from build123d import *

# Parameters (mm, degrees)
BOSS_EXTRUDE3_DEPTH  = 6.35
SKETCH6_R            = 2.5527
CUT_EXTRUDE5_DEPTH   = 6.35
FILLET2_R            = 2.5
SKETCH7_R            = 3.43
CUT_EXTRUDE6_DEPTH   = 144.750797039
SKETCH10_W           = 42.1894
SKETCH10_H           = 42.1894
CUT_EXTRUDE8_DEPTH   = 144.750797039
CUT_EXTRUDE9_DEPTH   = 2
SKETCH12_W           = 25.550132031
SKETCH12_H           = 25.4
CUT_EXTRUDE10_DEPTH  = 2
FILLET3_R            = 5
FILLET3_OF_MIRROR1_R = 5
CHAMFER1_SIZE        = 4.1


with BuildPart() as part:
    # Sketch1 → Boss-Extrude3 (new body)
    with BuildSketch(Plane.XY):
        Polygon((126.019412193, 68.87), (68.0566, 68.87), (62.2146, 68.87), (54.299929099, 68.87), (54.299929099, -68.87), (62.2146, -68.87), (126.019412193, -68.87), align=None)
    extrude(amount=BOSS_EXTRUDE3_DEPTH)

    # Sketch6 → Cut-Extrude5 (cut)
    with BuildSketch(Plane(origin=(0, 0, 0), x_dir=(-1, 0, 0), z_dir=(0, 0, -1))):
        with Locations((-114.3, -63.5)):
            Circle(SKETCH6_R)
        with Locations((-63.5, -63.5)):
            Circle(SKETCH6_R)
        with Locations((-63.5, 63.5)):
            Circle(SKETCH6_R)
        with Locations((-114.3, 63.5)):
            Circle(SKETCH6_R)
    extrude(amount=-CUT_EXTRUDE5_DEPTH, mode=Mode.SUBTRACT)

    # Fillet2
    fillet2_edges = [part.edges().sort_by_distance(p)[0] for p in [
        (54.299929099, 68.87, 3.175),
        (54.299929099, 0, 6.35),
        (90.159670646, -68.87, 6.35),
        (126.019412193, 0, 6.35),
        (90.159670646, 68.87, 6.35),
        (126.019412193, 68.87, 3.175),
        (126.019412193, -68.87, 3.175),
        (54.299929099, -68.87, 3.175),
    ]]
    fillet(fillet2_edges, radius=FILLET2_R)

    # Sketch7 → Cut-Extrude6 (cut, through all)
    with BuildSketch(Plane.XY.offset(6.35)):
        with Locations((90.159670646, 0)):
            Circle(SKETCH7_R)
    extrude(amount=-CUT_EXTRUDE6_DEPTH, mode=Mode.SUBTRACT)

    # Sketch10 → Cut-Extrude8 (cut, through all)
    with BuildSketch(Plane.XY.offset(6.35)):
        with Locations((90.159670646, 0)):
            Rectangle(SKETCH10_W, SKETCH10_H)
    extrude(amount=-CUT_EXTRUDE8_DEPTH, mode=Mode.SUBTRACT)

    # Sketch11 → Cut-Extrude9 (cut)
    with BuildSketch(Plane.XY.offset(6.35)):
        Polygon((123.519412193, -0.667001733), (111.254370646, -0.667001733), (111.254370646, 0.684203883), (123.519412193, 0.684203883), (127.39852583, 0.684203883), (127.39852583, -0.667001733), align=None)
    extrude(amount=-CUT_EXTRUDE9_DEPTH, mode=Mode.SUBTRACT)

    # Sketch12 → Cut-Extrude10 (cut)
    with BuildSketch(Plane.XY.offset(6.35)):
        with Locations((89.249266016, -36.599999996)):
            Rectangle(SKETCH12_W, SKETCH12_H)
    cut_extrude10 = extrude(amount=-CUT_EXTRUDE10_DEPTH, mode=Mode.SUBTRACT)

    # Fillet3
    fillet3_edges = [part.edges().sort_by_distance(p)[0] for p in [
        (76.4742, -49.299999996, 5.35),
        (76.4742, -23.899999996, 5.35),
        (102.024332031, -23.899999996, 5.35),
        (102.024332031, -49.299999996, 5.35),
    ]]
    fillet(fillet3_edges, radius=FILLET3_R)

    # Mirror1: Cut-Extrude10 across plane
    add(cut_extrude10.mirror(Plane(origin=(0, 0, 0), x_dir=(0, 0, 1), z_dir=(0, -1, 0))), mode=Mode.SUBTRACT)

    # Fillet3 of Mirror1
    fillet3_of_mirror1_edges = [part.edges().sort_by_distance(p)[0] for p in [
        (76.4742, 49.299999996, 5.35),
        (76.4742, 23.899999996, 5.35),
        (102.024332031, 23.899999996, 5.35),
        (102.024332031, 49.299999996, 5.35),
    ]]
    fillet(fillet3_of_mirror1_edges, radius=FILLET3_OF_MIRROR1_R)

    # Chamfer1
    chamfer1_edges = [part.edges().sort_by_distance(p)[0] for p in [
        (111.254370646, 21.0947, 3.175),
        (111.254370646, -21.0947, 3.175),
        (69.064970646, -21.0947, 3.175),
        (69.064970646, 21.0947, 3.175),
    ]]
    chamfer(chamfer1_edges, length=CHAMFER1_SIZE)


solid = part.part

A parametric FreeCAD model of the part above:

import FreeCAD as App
import Part
import Sketcher

V = App.Vector


def edges_at(feature, points):
    """Names of the edges that pass closest to the given points."""
    edges = feature.Shape.Edges
    near = lambda p: min(range(len(edges)), key=lambda i: edges[i].distToShape(Part.Vertex(*p))[0])
    return sorted({f"Edge{near(p) + 1}" for p in points})


def add_polygon(sketch, points):
    """Adds a closed chain of lines whose ends are joined by coincident constraints."""
    first, n = sketch.GeometryCount, len(points)
    for a, b in zip(points, points[1:] + points[:1]):
        sketch.addGeometry(Part.LineSegment(App.Vector(*a, 0), App.Vector(*b, 0)), False)
    for i in range(n):
        sketch.addConstraint(Sketcher.Constraint("Coincident", first + i, 2, first + (i + 1) % n, 1))

doc = App.newDocument("Part")
body = doc.addObject("PartDesign::Body", "Body")

# Sketch on XY plane
sketch1 = body.newObject("Sketcher::SketchObject", "Sketch")
sketch1.AttachmentSupport = (doc.getObject("XY_Plane"), [""])
sketch1.MapMode = "FlatFace"
add_polygon(sketch1, [(126, 69), (54, 69), (54, -69), (126, -69)])  # lines 0-3
sketch1.addConstraint(Sketcher.Constraint("Horizontal", 0))
sketch1.addConstraint(Sketcher.Constraint("Vertical", 1))
sketch1.addConstraint(Sketcher.Constraint("Horizontal", 2))
sketch1.addConstraint(Sketcher.Constraint("Vertical", 3))
sketch1.addConstraint(Sketcher.Constraint("DistanceY", 1, 2, 1, 1, 137.74))
sketch1.addConstraint(Sketcher.Constraint("DistanceY", -1, 1, 0, 2, 68.87))
sketch1.addConstraint(Sketcher.Constraint("DistanceX", 0, 2, 0, 1, 71.719483))
sketch1.addConstraint(Sketcher.Constraint("DistanceX", -1, 1, 0, 2, 54.299929))
pad1 = body.newObject("PartDesign::Pad", "Pad")
pad1.Profile = sketch1
pad1.Length = 6.35

# Sketch on XY plane
sketch2 = body.newObject("Sketcher::SketchObject", "Sketch001")
sketch2.AttachmentSupport = (doc.getObject("XY_Plane"), [""])
sketch2.MapMode = "FlatFace"
sketch2.addGeometry(Part.Circle(V(114.3, -63.5, 0), V(0, 0, 1), 2.6), False)
sketch2.addGeometry(Part.Circle(V(63.5, -63.5, 0), V(0, 0, 1), 2.6), False)
sketch2.addGeometry(Part.Circle(V(63.5, 63.5, 0), V(0, 0, 1), 2.6), False)
sketch2.addGeometry(Part.Circle(V(114.3, 63.5, 0), V(0, 0, 1), 2.6), False)
sketch2.addConstraint(Sketcher.Constraint("Equal", 0, 1))
sketch2.addConstraint(Sketcher.Constraint("Equal", 1, 2))
sketch2.addConstraint(Sketcher.Constraint("Equal", 2, 3))
sketch2.addConstraint(Sketcher.Constraint("Symmetric", 1, 3, 2, 3, -1))
sketch2.addConstraint(Sketcher.Constraint("Symmetric", 0, 3, 3, 3, -1))
sketch2.addConstraint(Sketcher.Constraint("Horizontal", 0, 3, 1, 3))
sketch2.addConstraint(Sketcher.Constraint("DistanceY", 1, 3, 2, 3, 127.0))
sketch2.addConstraint(Sketcher.Constraint("Diameter", 0, 5.1054))
sketch2.addConstraint(Sketcher.Constraint("DistanceX", -1, 1, 0, 3, 114.3))
sketch2.addConstraint(Sketcher.Constraint("DistanceX", -1, 1, 1, 3, 63.5))
pocket1 = body.newObject("PartDesign::Pocket", "Pocket")
pocket1.Profile = sketch2
pocket1.Length = 6.35
pocket1.Reversed = True
doc.recompute()

fillet = body.newObject("PartDesign::Fillet", "Fillet")
fillet.Base = (pocket1, edges_at(pocket1, [
    (54.3, 68.87, 3.175),
    (54.3, 0, 6.35),
    (90.16, -68.87, 6.35),
    (126.019, 0, 6.35),
    (90.16, 68.87, 6.35),
    (126.019, 68.87, 3.175),
    (126.019, -68.87, 3.175),
    (54.3, -68.87, 3.175),
]))
fillet.Radius = 2.5

# Sketch on XY plane
sketch3 = body.newObject("Sketcher::SketchObject", "Sketch002")
sketch3.AttachmentSupport = (doc.getObject("XY_Plane"), [""])
sketch3.MapMode = "FlatFace"
sketch3.AttachmentOffset = App.Placement(V(0, 0, 6.35), App.Rotation())
sketch3.addGeometry(Part.Circle(V(90.2, 0, 0), V(0, 0, 1), 3.4), False)
sketch3.addConstraint(Sketcher.Constraint("PointOnObject", 0, 3, -1))
sketch3.addConstraint(Sketcher.Constraint("Diameter", 0, 6.86))
sketch3.addConstraint(Sketcher.Constraint("DistanceX", -1, 1, 0, 3, 90.159671))
pocket2 = body.newObject("PartDesign::Pocket", "Pocket001")
pocket2.Profile = sketch3
pocket2.Type = "ThroughAll"

# Sketch on XY plane
sketch4 = body.newObject("Sketcher::SketchObject", "Sketch003")
sketch4.AttachmentSupport = (doc.getObject("XY_Plane"), [""])
sketch4.MapMode = "FlatFace"
sketch4.AttachmentOffset = App.Placement(V(0, 0, 6.35), App.Rotation())
add_polygon(sketch4, [(69, 21), (69, -21), (111, -21), (111, 21)])  # lines 0-3
sketch4.addConstraint(Sketcher.Constraint("Vertical", 0))
sketch4.addConstraint(Sketcher.Constraint("Horizontal", 1))
sketch4.addConstraint(Sketcher.Constraint("Vertical", 2))
sketch4.addConstraint(Sketcher.Constraint("Horizontal", 3))
sketch4.addConstraint(Sketcher.Constraint("Equal", 3, 0))
sketch4.addConstraint(Sketcher.Constraint("DistanceX", 1, 1, 1, 2, 42.1894))
sketch4.addConstraint(Sketcher.Constraint("DistanceY", 0, 2, -1, 1, 21.0947))
sketch4.addConstraint(Sketcher.Constraint("DistanceX", -1, 1, 0, 2, 69.064971))
pocket3 = body.newObject("PartDesign::Pocket", "Pocket002")
pocket3.Profile = sketch4
pocket3.Type = "ThroughAll"

# Sketch on XY plane
sketch5 = body.newObject("Sketcher::SketchObject", "Sketch004")
sketch5.AttachmentSupport = (doc.getObject("XY_Plane"), [""])
sketch5.MapMode = "FlatFace"
sketch5.AttachmentOffset = App.Placement(V(0, 0, 6.35), App.Rotation())
add_polygon(sketch5, [(111.3, -0.7), (127.4, -0.7), (127.4, 0.7), (111.3, 0.7)])  # lines 0-3
sketch5.addConstraint(Sketcher.Constraint("Horizontal", 0))
sketch5.addConstraint(Sketcher.Constraint("Vertical", 1))
sketch5.addConstraint(Sketcher.Constraint("Horizontal", 2))
sketch5.addConstraint(Sketcher.Constraint("Vertical", 3))
sketch5.addConstraint(Sketcher.Constraint("DistanceY", 0, 2, -1, 1, 0.667002))
sketch5.addConstraint(Sketcher.Constraint("DistanceX", 0, 1, 0, 2, 16.144155))
sketch5.addConstraint(Sketcher.Constraint("DistanceY", 1, 1, 1, 2, 1.351206))
sketch5.addConstraint(Sketcher.Constraint("DistanceX", -1, 1, 2, 2, 111.254371))
pocket4 = body.newObject("PartDesign::Pocket", "Pocket003")
pocket4.Profile = sketch5
pocket4.Length = 2

# Sketch on XY plane
sketch6 = body.newObject("Sketcher::SketchObject", "Sketch005")
sketch6.AttachmentSupport = (doc.getObject("XY_Plane"), [""])
sketch6.MapMode = "FlatFace"
sketch6.AttachmentOffset = App.Placement(V(0, 0, 6.35), App.Rotation())
add_polygon(sketch6, [(76, -24), (76, -49), (102, -49), (102, -24)])  # lines 0-3
sketch6.addConstraint(Sketcher.Constraint("Vertical", 0))
sketch6.addConstraint(Sketcher.Constraint("Horizontal", 1))
sketch6.addConstraint(Sketcher.Constraint("Vertical", 2))
sketch6.addConstraint(Sketcher.Constraint("Horizontal", 3))
sketch6.addConstraint(Sketcher.Constraint("DistanceY", 0, 2, 0, 1, 25.4))
sketch6.addConstraint(Sketcher.Constraint("DistanceY", 0, 2, -1, 1, 49.3))
sketch6.addConstraint(Sketcher.Constraint("DistanceX", -1, 1, 0, 2, 76.4742))
sketch6.addConstraint(Sketcher.Constraint("DistanceX", 1, 1, 1, 2, 25.550132))
pocket5 = body.newObject("PartDesign::Pocket", "Pocket004")
pocket5.Profile = sketch6
pocket5.Length = 2
doc.recompute()

fillet2 = body.newObject("PartDesign::Fillet", "Fillet001")
fillet2.Base = (pocket5, edges_at(pocket5, [
    (76.474, -49.3, 5.35),
    (76.474, -23.9, 5.35),
    (102.024, -23.9, 5.35),
    (102.024, -49.3, 5.35),
]))
fillet2.Radius = 5
doc.recompute()

mirrored = body.newObject("PartDesign::Mirrored", "Mirrored")
mirrored.Originals = [pocket5]
mirrored.MirrorPlane = (doc.getObject("XZ_Plane"), [""])
body.Tip = mirrored
doc.recompute()

fillet3 = body.newObject("PartDesign::Fillet", "Fillet002")
fillet3.Base = (mirrored, edges_at(mirrored, [
    (76.474, 49.3, 5.35),
    (76.474, 23.9, 5.35),
    (102.024, 23.9, 5.35),
    (102.024, 49.3, 5.35),
]))
fillet3.Radius = 5
doc.recompute()

chamfer = body.newObject("PartDesign::Chamfer", "Chamfer")
chamfer.Base = (fillet3, edges_at(fillet3, [
    (111.254, 21.095, 3.175),
    (111.254, -21.095, 3.175),
    (69.065, -21.095, 3.175),
    (69.065, 21.095, 3.175),
]))
chamfer.Size = 4.1

doc.recompute()
